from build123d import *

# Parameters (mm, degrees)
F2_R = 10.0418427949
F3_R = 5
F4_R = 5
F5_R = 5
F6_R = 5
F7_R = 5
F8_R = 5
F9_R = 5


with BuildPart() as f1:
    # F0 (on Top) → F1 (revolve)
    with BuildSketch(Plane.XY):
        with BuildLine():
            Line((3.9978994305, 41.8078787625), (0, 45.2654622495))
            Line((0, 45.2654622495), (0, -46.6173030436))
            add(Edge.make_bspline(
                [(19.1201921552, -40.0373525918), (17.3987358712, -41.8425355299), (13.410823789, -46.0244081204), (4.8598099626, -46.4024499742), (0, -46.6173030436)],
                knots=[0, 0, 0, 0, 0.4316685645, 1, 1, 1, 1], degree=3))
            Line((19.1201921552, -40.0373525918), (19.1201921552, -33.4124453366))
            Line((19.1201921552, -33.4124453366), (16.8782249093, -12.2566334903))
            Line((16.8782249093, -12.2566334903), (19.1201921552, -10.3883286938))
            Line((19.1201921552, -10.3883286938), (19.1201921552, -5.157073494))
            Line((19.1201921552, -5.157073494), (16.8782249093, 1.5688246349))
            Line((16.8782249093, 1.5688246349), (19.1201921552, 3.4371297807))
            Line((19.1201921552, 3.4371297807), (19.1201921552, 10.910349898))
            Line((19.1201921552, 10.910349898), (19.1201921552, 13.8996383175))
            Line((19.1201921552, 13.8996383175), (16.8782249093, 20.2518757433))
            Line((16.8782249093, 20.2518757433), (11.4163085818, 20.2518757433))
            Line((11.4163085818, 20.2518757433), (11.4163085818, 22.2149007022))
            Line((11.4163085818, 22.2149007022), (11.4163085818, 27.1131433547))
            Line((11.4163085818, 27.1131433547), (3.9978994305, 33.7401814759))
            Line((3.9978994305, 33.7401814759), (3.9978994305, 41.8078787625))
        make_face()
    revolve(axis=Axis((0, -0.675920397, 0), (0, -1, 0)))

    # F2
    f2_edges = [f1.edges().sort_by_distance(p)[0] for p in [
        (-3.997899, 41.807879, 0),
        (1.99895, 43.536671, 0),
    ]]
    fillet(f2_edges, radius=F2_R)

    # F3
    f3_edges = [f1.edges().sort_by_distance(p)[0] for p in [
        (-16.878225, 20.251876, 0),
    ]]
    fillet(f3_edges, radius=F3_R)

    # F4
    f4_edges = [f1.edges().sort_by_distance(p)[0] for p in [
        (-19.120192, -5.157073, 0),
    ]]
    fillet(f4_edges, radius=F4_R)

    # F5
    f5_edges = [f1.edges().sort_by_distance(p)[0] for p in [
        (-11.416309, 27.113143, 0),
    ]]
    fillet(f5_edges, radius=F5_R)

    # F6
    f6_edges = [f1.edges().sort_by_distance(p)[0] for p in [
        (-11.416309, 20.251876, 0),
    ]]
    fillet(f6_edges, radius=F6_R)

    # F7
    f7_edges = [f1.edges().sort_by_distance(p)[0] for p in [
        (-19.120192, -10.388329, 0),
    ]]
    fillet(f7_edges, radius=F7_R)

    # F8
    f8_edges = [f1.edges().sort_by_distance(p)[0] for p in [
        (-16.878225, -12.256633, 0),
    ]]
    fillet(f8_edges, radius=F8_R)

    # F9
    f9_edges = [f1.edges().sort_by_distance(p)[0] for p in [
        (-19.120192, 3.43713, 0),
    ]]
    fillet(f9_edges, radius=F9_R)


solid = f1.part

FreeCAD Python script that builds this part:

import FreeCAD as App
import Part
import Sketcher
from FreeCAD import Vector
Q = App.Units.Quantity


def edges_at(feature, points):
    """Names of the edges that pass closest to the given points."""
    edges = feature.Shape.Edges
    near = lambda p: min(range(len(edges)), key=lambda i: edges[i].distToShape(Part.Vertex(*p))[0])
    return sorted({f"Edge{near(p) + 1}" for p in points})

doc = App.newDocument("Part")
body = doc.addObject("PartDesign::Body", "Body")

# Sketch on XY plane
sketch1 = body.newObject("Sketcher::SketchObject", "Sketch")
sketch1.AttachmentSupport = (doc.getObject("XY_Plane"), [""])
sketch1.MapMode = "FlatFace"
sketch1.addGeometry([
    Part.LineSegment(Vector(3.997899, 41.807879, 0), Vector(0, 45.265462, 0)),  # 0
    Part.LineSegment(Vector(0, 45.265462, 0), Vector(0, -46.617303, 0)),  # 1
    Part.BSplineCurve([Vector(19.120192, -40.037353, 0), Vector(17.398736, -41.842536, 0), Vector(13.410824, -46.024408, 0), Vector(4.85981, -46.40245, 0), Vector(0, -46.617303, 0)], [4, 1, 4], [0, 0.431668565, 1], False, 3, [1, 1, 1, 1, 1], False),  # 2
    Part.LineSegment(Vector(19.120192, -40.037353, 0), Vector(19.120192, -33.412445, 0)),  # 3
    Part.LineSegment(Vector(19.120192, -33.412445, 0), Vector(16.878225, -12.256633, 0)),  # 4
    Part.LineSegment(Vector(16.878225, -12.256633, 0), Vector(19.120192, -10.388329, 0)),  # 5
    Part.LineSegment(Vector(19.120192, -10.388329, 0), Vector(19.120192, -5.157073, 0)),  # 6
    Part.LineSegment(Vector(19.120192, -5.157073, 0), Vector(16.878225, 1.568825, 0)),  # 7
    Part.LineSegment(Vector(16.878225, 1.568825, 0), Vector(19.120192, 3.43713, 0)),  # 8
    Part.LineSegment(Vector(19.120192, 3.43713, 0), Vector(19.120192, 13.899638, 0)),  # 9
    Part.LineSegment(Vector(19.120192, 13.899638, 0), Vector(16.878225, 20.251876, 0)),  # 10
    Part.LineSegment(Vector(16.878225, 20.251876, 0), Vector(11.416309, 20.251876, 0)),  # 11
    Part.LineSegment(Vector(11.416309, 20.251876, 0), Vector(11.416309, 27.113143, 0)),  # 12
    Part.LineSegment(Vector(11.416309, 27.113143, 0), Vector(3.997899, 33.740181, 0)),  # 13
    Part.LineSegment(Vector(3.997899, 33.740181, 0), Vector(3.997899, 41.807879, 0)),  # 14
], False)
sketch1.addConstraint([
    Sketcher.Constraint("Block", 2),
    Sketcher.Constraint("Coincident", 0, 2, 1, 1),
    Sketcher.Constraint("Coincident", 1, 2, 2, 2),
    Sketcher.Constraint("Coincident", 2, 1, 3, 1),
    Sketcher.Constraint("Coincident", 3, 2, 4, 1),
    Sketcher.Constraint("Coincident", 4, 2, 5, 1),
    Sketcher.Constraint("Coincident", 5, 2, 6, 1),
    Sketcher.Constraint("Coincident", 6, 2, 7, 1),
    Sketcher.Constraint("Coincident", 7, 2, 8, 1),
    Sketcher.Constraint("Coincident", 8, 2, 9, 1),
    Sketcher.Constraint("Coincident", 9, 2, 10, 1),
    Sketcher.Constraint("Coincident", 10, 2, 11, 1),
    Sketcher.Constraint("Coincident", 11, 2, 12, 1),
    Sketcher.Constraint("Coincident", 12, 2, 13, 1),
    Sketcher.Constraint("Coincident", 13, 2, 14, 1),
    Sketcher.Constraint("Coincident", 14, 2, 0, 1),
    Sketcher.Constraint("Vertical", 1),
    Sketcher.Constraint("Vertical", 3),
    Sketcher.Constraint("Vertical", 6),
    Sketcher.Constraint("Vertical", 9),
    Sketcher.Constraint("Horizontal", 11),
    Sketcher.Constraint("Vertical", 12),
    Sketcher.Constraint("Vertical", 14),
    Sketcher.Constraint("Parallel", 5, 8),
    Sketcher.Constraint("Vertical", 3, 2, 5, 2),
    Sketcher.Constraint("Vertical", 4, 2, 7, 2),
    Sketcher.Constraint("Vertical", 6, 2, 8, 2),
    Sketcher.Constraint("Vertical", 7, 2, 10, 2),
    Sketcher.Constraint("DistanceY", 9, 1, 9, 2, Q("10.462509 mm")),
    Sketcher.Constraint("DistanceX", -1, 1, 13, 2, Q("3.997899 mm")),
    Sketcher.Constraint("DistanceY", 6, 2, 7, 2, Q("6.725898 mm")),
    Sketcher.Constraint("Distance", 0, Q("5.285649 mm")),
    Sketcher.Constraint("Distance", 7, Q("7.08972 mm")),
    Sketcher.Constraint("Distance", 10, Q("6.73627 mm")),
    Sketcher.Constraint("DistanceX", 11, 2, 11, 1, Q("5.461916 mm")),
    Sketcher.Constraint("DistanceY", 1, 2, 1, 1, Q("91.882765 mm")),
    Sketcher.Constraint("DistanceY", 3, 1, 3, 2, Q("6.624907 mm")),
    Sketcher.Constraint("DistanceY", 6, 1, 6, 2, Q("5.231255 mm")),
    Sketcher.Constraint("DistanceY", 12, 1, 12, 2, Q("6.861268 mm")),
    Sketcher.Constraint("DistanceY", 14, 1, 14, 2, Q("8.067697 mm")),
    Sketcher.Constraint("DistanceY", 5, 2, -1, 1, Q("10.388329 mm")),
    Sketcher.Constraint("DistanceY", -1, 1, 8, 2, Q("3.43713 mm")),
])
revolution = body.newObject("PartDesign::Revolution", "Revolution")
revolution.Profile = sketch1
revolution.ReferenceAxis = (sketch1, ["V_Axis"])
revolution.Angle = 360
doc.recompute()

fillet = body.newObject("PartDesign::Fillet", "Fillet")
fillet.Base = (revolution, edges_at(revolution, [(-3.998, 41.808, 0), (1.999, 43.537, 0)]))
fillet.Radius = 10.041843
doc.recompute()

fillet2 = body.newObject("PartDesign::Fillet", "Fillet001")
fillet2.Base = (fillet, edges_at(fillet, [(-16.878, 20.252, 0)]))
fillet2.Radius = 5
doc.recompute()

fillet3 = body.newObject("PartDesign::Fillet", "Fillet002")
fillet3.Base = (fillet2, edges_at(fillet2, [(-19.12, -5.157, 0)]))
fillet3.Radius = 5
doc.recompute()

fillet4 = body.newObject("PartDesign::Fillet", "Fillet003")
fillet4.Base = (fillet3, edges_at(fillet3, [(-11.416, 27.113, 0)]))
fillet4.Radius = 5
doc.recompute()

fillet5 = body.newObject("PartDesign::Fillet", "Fillet004")
fillet5.Base = (fillet4, edges_at(fillet4, [(-11.416, 20.252, 0)]))
fillet5.Radius = 5
doc.recompute()

fillet6 = body.newObject("PartDesign::Fillet", "Fillet005")
fillet6.Base = (fillet5, edges_at(fillet5, [(-19.12, -10.388, 0)]))
fillet6.Radius = 5
doc.recompute()

fillet7 = body.newObject("PartDesign::Fillet", "Fillet006")
fillet7.Base = (fillet6, edges_at(fillet6, [(-16.878, -12.257, 0)]))
fillet7.Radius = 5
doc.recompute()

fillet8 = body.newObject("PartDesign::Fillet", "Fillet007")
fillet8.Base = (fillet7, edges_at(fillet7, [(-19.12, 3.437, 0)]))
fillet8.Radius = 5

doc.recompute()
